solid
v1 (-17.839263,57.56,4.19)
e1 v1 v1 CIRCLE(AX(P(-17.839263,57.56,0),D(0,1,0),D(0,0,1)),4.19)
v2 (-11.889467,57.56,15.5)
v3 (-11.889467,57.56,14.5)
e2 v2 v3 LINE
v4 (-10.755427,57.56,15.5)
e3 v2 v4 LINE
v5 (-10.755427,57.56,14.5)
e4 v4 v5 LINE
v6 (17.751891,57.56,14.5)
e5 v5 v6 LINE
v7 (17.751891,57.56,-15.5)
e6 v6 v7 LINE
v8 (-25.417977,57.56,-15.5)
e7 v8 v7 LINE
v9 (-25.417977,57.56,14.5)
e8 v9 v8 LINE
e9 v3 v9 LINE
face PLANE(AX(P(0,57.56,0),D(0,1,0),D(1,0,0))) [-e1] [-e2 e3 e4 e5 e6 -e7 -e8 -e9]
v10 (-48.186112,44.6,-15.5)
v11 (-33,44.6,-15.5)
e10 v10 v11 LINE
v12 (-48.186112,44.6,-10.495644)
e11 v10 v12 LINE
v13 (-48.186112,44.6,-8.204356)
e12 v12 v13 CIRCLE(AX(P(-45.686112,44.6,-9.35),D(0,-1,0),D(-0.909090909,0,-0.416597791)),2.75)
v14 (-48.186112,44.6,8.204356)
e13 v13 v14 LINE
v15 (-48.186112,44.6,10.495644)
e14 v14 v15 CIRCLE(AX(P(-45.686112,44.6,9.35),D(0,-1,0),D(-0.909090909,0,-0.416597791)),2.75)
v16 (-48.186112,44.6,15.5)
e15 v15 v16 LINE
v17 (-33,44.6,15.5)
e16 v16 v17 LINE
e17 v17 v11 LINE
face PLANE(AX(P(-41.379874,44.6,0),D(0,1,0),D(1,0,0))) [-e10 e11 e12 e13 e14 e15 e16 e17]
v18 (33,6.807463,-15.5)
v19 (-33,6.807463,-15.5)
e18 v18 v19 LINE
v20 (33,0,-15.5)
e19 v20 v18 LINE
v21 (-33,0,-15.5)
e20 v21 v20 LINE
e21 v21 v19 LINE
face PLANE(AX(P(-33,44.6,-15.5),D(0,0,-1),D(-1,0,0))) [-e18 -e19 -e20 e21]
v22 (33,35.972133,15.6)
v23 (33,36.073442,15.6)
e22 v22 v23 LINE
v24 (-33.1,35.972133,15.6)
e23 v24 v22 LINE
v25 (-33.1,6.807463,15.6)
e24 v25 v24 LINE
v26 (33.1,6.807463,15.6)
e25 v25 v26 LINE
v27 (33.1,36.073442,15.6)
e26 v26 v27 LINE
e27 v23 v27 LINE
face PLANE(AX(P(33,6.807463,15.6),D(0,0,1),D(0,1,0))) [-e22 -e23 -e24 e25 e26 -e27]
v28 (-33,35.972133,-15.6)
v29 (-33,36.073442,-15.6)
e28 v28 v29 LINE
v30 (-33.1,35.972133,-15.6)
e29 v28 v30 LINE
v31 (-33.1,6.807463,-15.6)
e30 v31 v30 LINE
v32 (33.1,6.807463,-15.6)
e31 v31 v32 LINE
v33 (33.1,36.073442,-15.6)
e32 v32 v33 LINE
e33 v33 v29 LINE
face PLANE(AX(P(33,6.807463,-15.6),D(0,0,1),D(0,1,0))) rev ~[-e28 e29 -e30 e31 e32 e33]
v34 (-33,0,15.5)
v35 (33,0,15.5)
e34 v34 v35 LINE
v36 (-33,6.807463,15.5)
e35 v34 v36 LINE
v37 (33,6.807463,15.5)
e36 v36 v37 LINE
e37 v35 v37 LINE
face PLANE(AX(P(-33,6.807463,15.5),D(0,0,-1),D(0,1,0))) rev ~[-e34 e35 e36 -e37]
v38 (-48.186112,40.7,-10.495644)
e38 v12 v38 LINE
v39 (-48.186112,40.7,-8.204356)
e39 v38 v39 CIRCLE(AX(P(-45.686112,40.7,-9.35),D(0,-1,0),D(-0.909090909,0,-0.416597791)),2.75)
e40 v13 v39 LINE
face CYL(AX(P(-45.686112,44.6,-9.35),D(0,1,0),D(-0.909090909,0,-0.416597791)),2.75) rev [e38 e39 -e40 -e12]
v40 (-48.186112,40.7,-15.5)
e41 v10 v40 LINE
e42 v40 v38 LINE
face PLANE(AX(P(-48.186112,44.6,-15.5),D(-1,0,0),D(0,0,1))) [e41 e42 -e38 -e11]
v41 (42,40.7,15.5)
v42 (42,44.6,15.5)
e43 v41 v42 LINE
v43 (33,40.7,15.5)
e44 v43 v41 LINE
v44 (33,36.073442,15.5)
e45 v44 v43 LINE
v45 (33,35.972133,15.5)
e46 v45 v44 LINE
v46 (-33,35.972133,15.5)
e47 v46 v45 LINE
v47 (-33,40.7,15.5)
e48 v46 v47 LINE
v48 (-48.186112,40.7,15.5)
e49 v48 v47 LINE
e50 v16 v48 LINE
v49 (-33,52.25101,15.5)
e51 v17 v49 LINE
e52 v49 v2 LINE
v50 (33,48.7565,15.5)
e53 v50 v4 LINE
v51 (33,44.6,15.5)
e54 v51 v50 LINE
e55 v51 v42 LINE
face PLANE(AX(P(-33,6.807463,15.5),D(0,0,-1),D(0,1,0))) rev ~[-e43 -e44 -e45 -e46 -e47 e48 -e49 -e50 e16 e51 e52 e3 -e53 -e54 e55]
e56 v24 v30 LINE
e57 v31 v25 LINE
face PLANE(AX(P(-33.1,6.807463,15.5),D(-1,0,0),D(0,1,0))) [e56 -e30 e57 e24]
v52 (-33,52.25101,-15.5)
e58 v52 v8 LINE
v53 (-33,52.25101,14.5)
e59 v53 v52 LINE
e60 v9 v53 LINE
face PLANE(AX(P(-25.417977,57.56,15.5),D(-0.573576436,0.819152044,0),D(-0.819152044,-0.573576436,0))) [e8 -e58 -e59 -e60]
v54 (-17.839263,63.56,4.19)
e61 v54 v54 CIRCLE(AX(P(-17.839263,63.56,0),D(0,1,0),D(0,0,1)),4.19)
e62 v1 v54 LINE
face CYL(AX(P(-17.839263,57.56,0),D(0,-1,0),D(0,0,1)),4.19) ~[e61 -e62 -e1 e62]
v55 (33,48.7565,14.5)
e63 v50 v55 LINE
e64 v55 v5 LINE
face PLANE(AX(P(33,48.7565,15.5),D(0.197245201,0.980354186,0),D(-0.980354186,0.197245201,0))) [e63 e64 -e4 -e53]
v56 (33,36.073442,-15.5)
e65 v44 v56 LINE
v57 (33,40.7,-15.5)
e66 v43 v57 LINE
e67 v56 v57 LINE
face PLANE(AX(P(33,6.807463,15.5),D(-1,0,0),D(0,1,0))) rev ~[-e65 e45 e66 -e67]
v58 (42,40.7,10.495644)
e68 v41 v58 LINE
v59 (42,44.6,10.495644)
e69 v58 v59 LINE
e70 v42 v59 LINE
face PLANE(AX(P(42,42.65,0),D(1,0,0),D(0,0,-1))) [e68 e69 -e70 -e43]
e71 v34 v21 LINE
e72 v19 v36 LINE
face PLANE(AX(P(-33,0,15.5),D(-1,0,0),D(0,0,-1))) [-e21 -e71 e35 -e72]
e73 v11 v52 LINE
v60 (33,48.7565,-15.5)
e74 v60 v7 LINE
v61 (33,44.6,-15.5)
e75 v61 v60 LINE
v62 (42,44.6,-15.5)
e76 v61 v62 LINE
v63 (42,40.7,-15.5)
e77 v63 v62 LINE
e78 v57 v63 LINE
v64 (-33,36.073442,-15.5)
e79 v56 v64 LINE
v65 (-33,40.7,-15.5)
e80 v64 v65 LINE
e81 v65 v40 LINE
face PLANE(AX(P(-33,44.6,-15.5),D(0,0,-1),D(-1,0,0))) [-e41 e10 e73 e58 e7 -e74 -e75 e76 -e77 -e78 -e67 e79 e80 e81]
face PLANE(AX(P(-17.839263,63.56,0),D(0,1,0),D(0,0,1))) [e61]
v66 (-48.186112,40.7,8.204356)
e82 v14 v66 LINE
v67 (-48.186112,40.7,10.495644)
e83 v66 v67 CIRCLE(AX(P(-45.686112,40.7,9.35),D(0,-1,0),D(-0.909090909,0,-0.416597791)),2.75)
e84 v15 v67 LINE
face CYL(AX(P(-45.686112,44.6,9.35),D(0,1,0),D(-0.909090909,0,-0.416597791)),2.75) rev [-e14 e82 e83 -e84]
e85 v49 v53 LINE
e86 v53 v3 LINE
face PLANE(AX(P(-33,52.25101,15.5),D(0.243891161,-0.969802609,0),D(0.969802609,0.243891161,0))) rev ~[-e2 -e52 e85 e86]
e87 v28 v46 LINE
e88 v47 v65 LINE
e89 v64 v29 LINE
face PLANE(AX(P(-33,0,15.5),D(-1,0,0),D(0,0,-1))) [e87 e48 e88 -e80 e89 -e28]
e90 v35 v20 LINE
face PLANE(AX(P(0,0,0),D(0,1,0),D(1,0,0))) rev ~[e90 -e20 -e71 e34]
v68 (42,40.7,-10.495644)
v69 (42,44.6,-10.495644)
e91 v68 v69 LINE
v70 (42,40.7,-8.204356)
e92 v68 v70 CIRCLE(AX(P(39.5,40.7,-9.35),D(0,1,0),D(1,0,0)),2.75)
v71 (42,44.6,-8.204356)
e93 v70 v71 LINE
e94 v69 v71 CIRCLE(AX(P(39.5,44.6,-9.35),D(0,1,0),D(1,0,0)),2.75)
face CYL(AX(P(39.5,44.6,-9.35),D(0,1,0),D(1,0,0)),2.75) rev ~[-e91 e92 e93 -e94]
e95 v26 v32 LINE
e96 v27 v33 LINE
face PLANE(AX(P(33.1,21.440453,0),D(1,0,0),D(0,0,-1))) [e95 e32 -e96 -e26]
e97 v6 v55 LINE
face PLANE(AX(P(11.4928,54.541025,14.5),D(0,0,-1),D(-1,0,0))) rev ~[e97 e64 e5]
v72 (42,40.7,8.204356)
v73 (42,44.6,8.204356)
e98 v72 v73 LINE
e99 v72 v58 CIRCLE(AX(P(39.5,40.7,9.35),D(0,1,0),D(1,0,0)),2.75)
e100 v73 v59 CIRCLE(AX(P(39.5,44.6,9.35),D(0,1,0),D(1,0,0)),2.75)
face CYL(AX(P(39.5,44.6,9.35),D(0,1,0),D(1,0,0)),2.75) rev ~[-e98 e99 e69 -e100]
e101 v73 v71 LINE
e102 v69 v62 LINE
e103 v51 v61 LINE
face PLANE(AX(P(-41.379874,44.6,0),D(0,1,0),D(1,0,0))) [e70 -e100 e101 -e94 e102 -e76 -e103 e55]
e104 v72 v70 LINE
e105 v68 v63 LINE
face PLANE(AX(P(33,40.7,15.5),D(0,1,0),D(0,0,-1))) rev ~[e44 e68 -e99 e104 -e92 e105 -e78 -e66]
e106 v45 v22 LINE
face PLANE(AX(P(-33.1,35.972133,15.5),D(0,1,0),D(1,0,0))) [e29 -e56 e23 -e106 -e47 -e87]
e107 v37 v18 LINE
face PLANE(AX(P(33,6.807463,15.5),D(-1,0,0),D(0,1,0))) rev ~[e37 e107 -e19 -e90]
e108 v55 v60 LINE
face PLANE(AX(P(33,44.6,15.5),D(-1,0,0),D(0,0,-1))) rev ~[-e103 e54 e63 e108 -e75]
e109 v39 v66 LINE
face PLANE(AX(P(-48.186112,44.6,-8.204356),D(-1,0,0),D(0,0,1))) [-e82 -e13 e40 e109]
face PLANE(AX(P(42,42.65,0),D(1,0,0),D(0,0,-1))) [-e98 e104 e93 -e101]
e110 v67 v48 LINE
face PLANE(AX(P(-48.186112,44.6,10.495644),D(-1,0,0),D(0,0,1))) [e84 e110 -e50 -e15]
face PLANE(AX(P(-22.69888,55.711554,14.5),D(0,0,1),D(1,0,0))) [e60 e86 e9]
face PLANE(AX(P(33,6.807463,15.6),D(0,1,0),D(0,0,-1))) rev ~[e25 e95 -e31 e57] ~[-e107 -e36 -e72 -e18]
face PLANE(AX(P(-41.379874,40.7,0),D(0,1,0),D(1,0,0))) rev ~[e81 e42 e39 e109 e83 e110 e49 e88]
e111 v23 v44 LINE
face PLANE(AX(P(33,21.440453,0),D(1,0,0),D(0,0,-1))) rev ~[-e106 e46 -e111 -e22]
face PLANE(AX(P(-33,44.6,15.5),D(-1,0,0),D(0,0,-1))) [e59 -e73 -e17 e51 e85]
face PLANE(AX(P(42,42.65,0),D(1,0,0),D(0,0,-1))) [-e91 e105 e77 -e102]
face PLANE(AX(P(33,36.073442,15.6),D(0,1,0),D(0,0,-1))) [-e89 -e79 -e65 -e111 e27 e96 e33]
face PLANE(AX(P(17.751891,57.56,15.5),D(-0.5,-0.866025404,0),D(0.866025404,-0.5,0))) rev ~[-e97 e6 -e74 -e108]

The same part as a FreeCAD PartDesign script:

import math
import FreeCAD as App
import Part
import Sketcher
Q = App.Units.Quantity


def add_polygon(sketch, points):
    """Adds a closed chain of lines whose ends are joined by coincident constraints."""
    first, n = sketch.GeometryCount, len(points)
    for a, b in zip(points, points[1:] + points[:1]):
        sketch.addGeometry(Part.LineSegment(App.Vector(*a, 0), App.Vector(*b, 0)), False)
    for i in range(n):
        sketch.addConstraint(Sketcher.Constraint("Coincident", first + i, 2, first + (i + 1) % n, 1))

doc = App.newDocument("Part")
params = doc.addObject("Spreadsheet::Sheet", "Params")
for row, (alias, value) in enumerate([
    ("sketch1_width", "66 mm"),
    ("sketch1_height", "31 mm"),
    ("pad1_length", "44.6 mm"),
    ("sketch2_height", "31 mm"),
    ("sketch2_width", "3.9 mm"),
    ("pad2_length", "9 mm"),
    ("sketch3_diameter", "5.5 mm"),
    ("sketch4_height", "31 mm"),
    ("sketch4_radius", "2.75 mm"),
    ("pad3_length", "3.9 mm"),
    ("sketch5_width", "66 mm"),
    ("sketch5_height", "31 mm"),
    ("pad4_length", "12.96 mm"),
    ("pocket4_length", "1 mm"),
    ("sketch9_diameter", "8.38 mm"),
    ("pad5_length", "6 mm"),
    ("sketch10_width", "66 mm"),
    ("pad6_length", "0.1 mm"),
    ("sketch11_height", "31.1 mm"),
    ("pad7_length", "0.1 mm"),
    ("sketch12_width", "66.1 mm"),
    ("pad8_length", "0.1 mm"),
    ("sketch13_height", "31.2 mm"),
    ("pad9_length", "0.1 mm"),
], start=1):
    params.set(f"A{row}", alias)
    params.set(f"B{row}", "=" + value)
    params.setAlias(f"B{row}", alias)

body = doc.addObject("PartDesign::Body", "Body")

# Sketch on XZ plane
sketch1 = body.newObject("Sketcher::SketchObject", "Sketch")
sketch1.AttachmentSupport = (doc.getObject("XZ_Plane"), [""])
sketch1.MapMode = "FlatFace"
add_polygon(sketch1, [(-33, -16), (-33, 16), (33, 16), (33, -16)])  # lines 0-3
sketch1.addConstraint([
    Sketcher.Constraint("Vertical", 0),
    Sketcher.Constraint("Horizontal", 1),
    Sketcher.Constraint("Vertical", 2),
    Sketcher.Constraint("Horizontal", 3),
    Sketcher.Constraint("Symmetric", 0, 2, 2, 2, -1, 1),
    Sketcher.Constraint("DistanceX", 1, 1, 1, 2, 66.0),
    Sketcher.Constraint("DistanceY", 0, 1, 0, 2, 31.0),
])
sketch1.setExpression("Constraints[9]", "Params.sketch1_width")
sketch1.setExpression("Constraints[10]", "Params.sketch1_height")
pad1 = body.newObject("PartDesign::Pad", "Pad")
pad1.Profile = sketch1
pad1.setExpression("Length", "Params.pad1_length")
pad1.Reversed = True

# Sketch on YZ plane
sketch2 = body.newObject("Sketcher::SketchObject", "Sketch001")
sketch2.AttachmentSupport = (doc.getObject("YZ_Plane"), [""])
sketch2.MapMode = "FlatFace"
sketch2.AttachmentOffset = App.Placement(App.Vector(0, 0, 33), App.Rotation())
add_polygon(sketch2, [(44.6, 15.5), (40.7, 15.5), (40.7, -15.5), (44.6, -15.5)])  # lines 0-3
sketch2.addConstraint([
    Sketcher.Constraint("Horizontal", 0),
    Sketcher.Constraint("Vertical", 1),
    Sketcher.Constraint("Horizontal", 2),
    Sketcher.Constraint("Vertical", 3),
    Sketcher.Constraint("DistanceY", 1, 2, 1, 1, 31.0),
    Sketcher.Constraint("DistanceX", 0, 2, 0, 1, 3.9),
    Sketcher.Constraint("DistanceX", -1, 1, 0, 2, 40.7),
    Sketcher.Constraint("DistanceY", -1, 1, 0, 2, 15.5),
])
sketch2.setExpression("Constraints[8]", "Params.sketch2_height")
sketch2.setExpression("Constraints[9]", "Params.sketch2_width")
pad2 = body.newObject("PartDesign::Pad", "Pad001")
pad2.Profile = sketch2
pad2.setExpression("Length", "Params.pad2_length")

# Sketch on XZ plane
sketch3 = body.newObject("Sketcher::SketchObject", "Sketch002")
sketch3.AttachmentSupport = (doc.getObject("XZ_Plane"), [""])
sketch3.MapMode = "FlatFace"
sketch3.AttachmentOffset = App.Placement(App.Vector(0, 0, -44.6), App.Rotation())
sketch3.addGeometry([
    Part.Circle(App.Vector(39.5, 9.3, 0), App.Vector(0, 0, 1), 2.8),
    Part.Circle(App.Vector(39.5, -9.3, 0), App.Vector(0, 0, 1), 2.8),
], False)
sketch3.addConstraint([
    Sketcher.Constraint("Equal", 0, 1),
    Sketcher.Constraint("Symmetric", 0, 3, 1, 3, -1),
    Sketcher.Constraint("Diameter", 0, 5.5),
    Sketcher.Constraint("DistanceX", -1, 1, 0, 3, 39.5),
    Sketcher.Constraint("DistanceY", 1, 3, 0, 3, 18.7),
])
sketch3.setExpression("Constraints[2]", "Params.sketch3_diameter")
pocket1 = body.newObject("PartDesign::Pocket", "Pocket")
pocket1.Profile = sketch3
pocket1.Type = "ThroughAll"
pocket1.Reversed = True

# Sketch on XZ plane
sketch4 = body.newObject("Sketcher::SketchObject", "Sketch003")
sketch4.AttachmentSupport = (doc.getObject("XZ_Plane"), [""])
sketch4.MapMode = "FlatFace"
sketch4.AttachmentOffset = App.Placement(App.Vector(0, 0, -44.6), App.Rotation())
sketch4.addGeometry([
    Part.LineSegment(App.Vector(-33, -15.5, 0), App.Vector(-48.2, -15.5, 0)),  # 0
    Part.LineSegment(App.Vector(-48.2, -15.5, 0), App.Vector(-48.2, -10.5, 0)),  # 1
    Part.ArcOfCircle(Part.Circle(App.Vector(-45.7, -9.3, 0), App.Vector(0, 0, 1), 2.8), math.radians(-155), math.radians(155)),  # 2
    Part.LineSegment(App.Vector(-48.2, -8.2, 0), App.Vector(-48.2, 8.2, 0)),  # 3
    Part.ArcOfCircle(Part.Circle(App.Vector(-45.7, 9.3, 0), App.Vector(0, 0, 1), 2.8), math.radians(-155), math.radians(155)),  # 4
    Part.LineSegment(App.Vector(-48.2, 10.5, 0), App.Vector(-48.2, 15.5, 0)),  # 5
    Part.LineSegment(App.Vector(-48.2, 15.5, 0), App.Vector(-33, 15.5, 0)),  # 6
    Part.LineSegment(App.Vector(-33, 15.5, 0), App.Vector(-33, -15.5, 0)),  # 7
], False)
sketch4.addConstraint([
    Sketcher.Constraint("Coincident", 0, 2, 1, 1),
    Sketcher.Constraint("Coincident", 1, 2, 2, 1),
    Sketcher.Constraint("Coincident", 2, 2, 3, 1),
    Sketcher.Constraint("Coincident", 3, 2, 4, 1),
    Sketcher.Constraint("Coincident", 4, 2, 5, 1),
    Sketcher.Constraint("Coincident", 5, 2, 6, 1),
    Sketcher.Constraint("Coincident", 6, 2, 7, 1),
    Sketcher.Constraint("Coincident", 7, 2, 0, 1),
    Sketcher.Constraint("Horizontal", 0),
    Sketcher.Constraint("Vertical", 1),
    Sketcher.Constraint("Vertical", 3),
    Sketcher.Constraint("Vertical", 5),
    Sketcher.Constraint("Horizontal", 6),
    Sketcher.Constraint("Vertical", 7),
    Sketcher.Constraint("Equal", 2, 4),
    Sketcher.Constraint("Symmetric", 2, 3, 4, 3, -1),
    Sketcher.Constraint("Symmetric", 0, 2, 5, 2, -1),
    Sketcher.Constraint("Vertical", 1, 2, 2, 2),
    Sketcher.Constraint("DistanceY", 7, 2, 7, 1, 31.0),
    Sketcher.Constraint("Radius", 2, 2.75),
    Sketcher.Constraint("DistanceX", 6, 2, -1, 1, 33.0),
    Sketcher.Constraint("DistanceY", 2, 3, 4, 3, 18.7),
    Sketcher.Constraint("DistanceX", 0, 2, 2, 3, 2.5),
    Sketcher.Constraint("DistanceX", 0, 2, 0, 1, 15.186112),
])
sketch4.setExpression("Constraints[18]", "Params.sketch4_height")
sketch4.setExpression("Constraints[19]", "Params.sketch4_radius")
pad3 = body.newObject("PartDesign::Pad", "Pad002")
pad3.Profile = sketch4
pad3.setExpression("Length", "Params.pad3_length")

# Sketch on XZ plane
sketch5 = body.newObject("Sketcher::SketchObject", "Sketch004")
sketch5.AttachmentSupport = (doc.getObject("XZ_Plane"), [""])
sketch5.MapMode = "FlatFace"
sketch5.AttachmentOffset = App.Placement(App.Vector(0, 0, -44.6), App.Rotation())
add_polygon(sketch5, [(-33, -16), (-33, 16), (33, 16), (33, -16)])  # lines 0-3
sketch5.addConstraint([
    Sketcher.Constraint("Vertical", 0),
    Sketcher.Constraint("Horizontal", 1),
    Sketcher.Constraint("Vertical", 2),
    Sketcher.Constraint("Horizontal", 3),
    Sketcher.Constraint("Symmetric", 0, 2, 2, 2, -1, 1),
    Sketcher.Constraint("DistanceX", 1, 1, 1, 2, 66.0),
    Sketcher.Constraint("DistanceY", 0, 1, 0, 2, 31.0),
])
sketch5.setExpression("Constraints[9]", "Params.sketch5_width")
sketch5.setExpression("Constraints[10]", "Params.sketch5_height")
pad4 = body.newObject("PartDesign::Pad", "Pad003")
pad4.Profile = sketch5
pad4.setExpression("Length", "Params.pad4_length")
pad4.Reversed = True

# Sketch on XY plane
sketch6 = body.newObject("Sketcher::SketchObject", "Sketch005")
sketch6.AttachmentSupport = (doc.getObject("XY_Plane"), [""])
sketch6.MapMode = "FlatFace"
sketch6.AttachmentOffset = App.Placement(App.Vector(0, 0, 15.5), App.Rotation())
add_polygon(sketch6, [(-33, 52), (-25, 58), (-33, 58)])  # lines 0-2
sketch6.addConstraint([
    Sketcher.Constraint("Horizontal", 1),
    Sketcher.Constraint("Vertical", 2),
    Sketcher.Constraint("Angle", 0, Q("35 deg")),
    Sketcher.Constraint("DistanceX", 1, 2, -1, 1, 33.0),
    Sketcher.Constraint("DistanceY", -1, 1, 0, 2, 57.56),
    Sketcher.Constraint("DistanceY", 2, 2, 2, 1, 5.30899),
])
pocket2 = body.newObject("PartDesign::Pocket", "Pocket001")
pocket2.Profile = sketch6
pocket2.Type = "ThroughAll"

# Sketch on XY plane
sketch7 = body.newObject("Sketcher::SketchObject", "Sketch006")
sketch7.AttachmentSupport = (doc.getObject("XY_Plane"), [""])
sketch7.MapMode = "FlatFace"
sketch7.AttachmentOffset = App.Placement(App.Vector(0, 0, 15.5), App.Rotation())
add_polygon(sketch7, [(18, 58), (33, 49), (33, 58)])  # lines 0-2
sketch7.addConstraint([
    Sketcher.Constraint("Vertical", 1),
    Sketcher.Constraint("Horizontal", 2),
    Sketcher.Constraint("Angle", 0, Q("-30 deg")),
    Sketcher.Constraint("DistanceX", -1, 1, 0, 2, 33.0),
    Sketcher.Constraint("DistanceY", -1, 1, 1, 2, 57.56),
    Sketcher.Constraint("Distance", 0, 17.607),
])
pocket3 = body.newObject("PartDesign::Pocket", "Pocket002")
pocket3.Profile = sketch7
pocket3.Type = "ThroughAll"

# Sketch on XY plane
sketch8 = body.newObject("Sketcher::SketchObject", "Sketch007")
sketch8.AttachmentSupport = (doc.getObject("XY_Plane"), [""])
sketch8.MapMode = "FlatFace"
sketch8.AttachmentOffset = App.Placement(App.Vector(0, 0, 15.5), App.Rotation())
add_polygon(sketch8, [(-33, 52), (-12, 58), (-25, 58)])  # lines 0-2
add_polygon(sketch8, [(-11, 58), (33, 49), (18, 58)])  # lines 3-5
sketch8.addConstraint([
    Sketcher.Constraint("Horizontal", 1),
    Sketcher.Constraint("Horizontal", 5),
    Sketcher.Constraint("Horizontal", 1, 2, 4, 2),
    Sketcher.Constraint("Angle", 2, Q("-145 deg")),
    Sketcher.Constraint("Angle", 4, Q("150 deg")),
    Sketcher.Constraint("DistanceX", 2, 2, -1, 1, 33.0),
    Sketcher.Constraint("DistanceX", -1, 1, 3, 2, 33.0),
    Sketcher.Constraint("DistanceY", -1, 1, 0, 2, 57.56),
    Sketcher.Constraint("Distance", 4, 17.607),
    Sketcher.Constraint("DistanceX", 1, 2, 1, 1, 13.528509),
    Sketcher.Constraint("Distance", 2, 9.255942),
    Sketcher.Constraint("DistanceX", 5, 2, 5, 1, 28.507318),
])
pocket4 = body.newObject("PartDesign::Pocket", "Pocket003")
pocket4.Profile = sketch8
pocket4.setExpression("Length", "Params.pocket4_length")

# Sketch on XZ plane
sketch9 = body.newObject("Sketcher::SketchObject", "Sketch008")
sketch9.AttachmentSupport = (doc.getObject("XZ_Plane"), [""])
sketch9.MapMode = "FlatFace"
sketch9.AttachmentOffset = App.Placement(App.Vector(0, 0, -57.56), App.Rotation())
sketch9.addGeometry(Part.Circle(App.Vector(-17.8, 0, 0), App.Vector(0, 0, 1), 4.2), False)
sketch9.addConstraint([
    Sketcher.Constraint("PointOnObject", 0, 3, -1),
    Sketcher.Constraint("Diameter", 0, 8.38),
    Sketcher.Constraint("DistanceX", 0, 3, -1, 1, 17.839263),
])
sketch9.setExpression("Constraints[1]", "Params.sketch9_diameter")
pad5 = body.newObject("PartDesign::Pad", "Pad004")
pad5.Profile = sketch9
pad5.setExpression("Length", "Params.pad5_length")
pad5.Reversed = True

# Sketch on XY plane
sketch10 = body.newObject("Sketcher::SketchObject", "Sketch009")
sketch10.AttachmentSupport = (doc.getObject("XY_Plane"), [""])
sketch10.MapMode = "FlatFace"
sketch10.AttachmentOffset = App.Placement(App.Vector(0, 0, -15.5), App.Rotation())
add_polygon(sketch10, [(33, 36), (33, 7), (-33, 7), (-33, 36)])  # lines 0-3
sketch10.addConstraint([
    Sketcher.Constraint("Vertical", 0),
    Sketcher.Constraint("Horizontal", 1),
    Sketcher.Constraint("Vertical", 2),
    Sketcher.Constraint("Horizontal", 3),
    Sketcher.Constraint("DistanceX", 1, 2, 1, 1, 66.0),
    Sketcher.Constraint("DistanceX", -1, 1, 0, 2, 33.0),
    Sketcher.Constraint("DistanceY", 0, 2, 0, 1, 29.265979),
    Sketcher.Constraint("DistanceY", -1, 1, 0, 2, 6.807463),
])
sketch10.setExpression("Constraints[8]", "Params.sketch10_width")
pad6 = body.newObject("PartDesign::Pad", "Pad005")
pad6.Profile = sketch10
pad6.setExpression("Length", "Params.pad6_length")
pad6.Reversed = True

# Sketch on YZ plane
sketch11 = body.newObject("Sketcher::SketchObject", "Sketch010")
sketch11.AttachmentSupport = (doc.getObject("YZ_Plane"), [""])
sketch11.MapMode = "FlatFace"
sketch11.AttachmentOffset = App.Placement(App.Vector(0, 0, -33), App.Rotation())
add_polygon(sketch11, [(36, -16), (7, -16), (7, 16), (36, 16)])  # lines 0-3
sketch11.addConstraint([
    Sketcher.Constraint("Horizontal", 0),
    Sketcher.Constraint("Vertical", 1),
    Sketcher.Constraint("Horizontal", 2),
    Sketcher.Constraint("Vertical", 3),
    Sketcher.Constraint("DistanceY", 1, 1, 1, 2, 31.1),
    Sketcher.Constraint("DistanceY", 0, 2, -1, 1, 15.6),
    Sketcher.Constraint("DistanceX", 0, 2, 0, 1, 29.16467),
    Sketcher.Constraint("DistanceX", -1, 1, 0, 2, 6.807463),
])
sketch11.setExpression("Constraints[8]", "Params.sketch11_height")
pad7 = body.newObject("PartDesign::Pad", "Pad006")
pad7.Profile = sketch11
pad7.setExpression("Length", "Params.pad7_length")
pad7.Reversed = True

# Sketch on XY plane
sketch12 = body.newObject("Sketcher::SketchObject", "Sketch011")
sketch12.AttachmentSupport = (doc.getObject("XY_Plane"), [""])
sketch12.MapMode = "FlatFace"
sketch12.AttachmentOffset = App.Placement(App.Vector(0, 0, 15.5), App.Rotation())
add_polygon(sketch12, [(-33, 36), (-33, 7), (33, 7), (33, 36)])  # lines 0-3
sketch12.addConstraint([
    Sketcher.Constraint("Vertical", 0),
    Sketcher.Constraint("Horizontal", 1),
    Sketcher.Constraint("Vertical", 2),
    Sketcher.Constraint("Horizontal", 3),
    Sketcher.Constraint("DistanceX", 1, 1, 1, 2, 66.1),
    Sketcher.Constraint("DistanceX", -1, 1, 1, 2, 33.0),
    Sketcher.Constraint("DistanceY", 0, 2, 0, 1, 29.16467),
    Sketcher.Constraint("DistanceY", -1, 1, 0, 2, 6.807463),
])
sketch12.setExpression("Constraints[8]", "Params.sketch12_width")
pad8 = body.newObject("PartDesign::Pad", "Pad007")
pad8.Profile = sketch12
pad8.setExpression("Length", "Params.pad8_length")

# Sketch on YZ plane
sketch13 = body.newObject("Sketcher::SketchObject", "Sketch012")
sketch13.AttachmentSupport = (doc.getObject("YZ_Plane"), [""])
sketch13.MapMode = "FlatFace"
sketch13.AttachmentOffset = App.Placement(App.Vector(0, 0, 33), App.Rotation())
add_polygon(sketch13, [(36, 16), (7, 16), (7, -16), (36, -16)])  # lines 0-3
sketch13.addConstraint([
    Sketcher.Constraint("Horizontal", 0),
    Sketcher.Constraint("Vertical", 1),
    Sketcher.Constraint("Horizontal", 2),
    Sketcher.Constraint("Vertical", 3),
    Sketcher.Constraint("DistanceY", 1, 2, 1, 1, 31.2),
    Sketcher.Constraint("DistanceY", -1, 1, 0, 2, 15.6),
    Sketcher.Constraint("DistanceX", 0, 2, 0, 1, 29.265979),
    Sketcher.Constraint("DistanceX", -1, 1, 0, 2, 6.807463),
])
sketch13.setExpression("Constraints[8]", "Params.sketch13_height")
pad9 = body.newObject("PartDesign::Pad", "Pad008")
pad9.Profile = sketch13
pad9.setExpression("Length", "Params.pad9_length")

doc.recompute()
